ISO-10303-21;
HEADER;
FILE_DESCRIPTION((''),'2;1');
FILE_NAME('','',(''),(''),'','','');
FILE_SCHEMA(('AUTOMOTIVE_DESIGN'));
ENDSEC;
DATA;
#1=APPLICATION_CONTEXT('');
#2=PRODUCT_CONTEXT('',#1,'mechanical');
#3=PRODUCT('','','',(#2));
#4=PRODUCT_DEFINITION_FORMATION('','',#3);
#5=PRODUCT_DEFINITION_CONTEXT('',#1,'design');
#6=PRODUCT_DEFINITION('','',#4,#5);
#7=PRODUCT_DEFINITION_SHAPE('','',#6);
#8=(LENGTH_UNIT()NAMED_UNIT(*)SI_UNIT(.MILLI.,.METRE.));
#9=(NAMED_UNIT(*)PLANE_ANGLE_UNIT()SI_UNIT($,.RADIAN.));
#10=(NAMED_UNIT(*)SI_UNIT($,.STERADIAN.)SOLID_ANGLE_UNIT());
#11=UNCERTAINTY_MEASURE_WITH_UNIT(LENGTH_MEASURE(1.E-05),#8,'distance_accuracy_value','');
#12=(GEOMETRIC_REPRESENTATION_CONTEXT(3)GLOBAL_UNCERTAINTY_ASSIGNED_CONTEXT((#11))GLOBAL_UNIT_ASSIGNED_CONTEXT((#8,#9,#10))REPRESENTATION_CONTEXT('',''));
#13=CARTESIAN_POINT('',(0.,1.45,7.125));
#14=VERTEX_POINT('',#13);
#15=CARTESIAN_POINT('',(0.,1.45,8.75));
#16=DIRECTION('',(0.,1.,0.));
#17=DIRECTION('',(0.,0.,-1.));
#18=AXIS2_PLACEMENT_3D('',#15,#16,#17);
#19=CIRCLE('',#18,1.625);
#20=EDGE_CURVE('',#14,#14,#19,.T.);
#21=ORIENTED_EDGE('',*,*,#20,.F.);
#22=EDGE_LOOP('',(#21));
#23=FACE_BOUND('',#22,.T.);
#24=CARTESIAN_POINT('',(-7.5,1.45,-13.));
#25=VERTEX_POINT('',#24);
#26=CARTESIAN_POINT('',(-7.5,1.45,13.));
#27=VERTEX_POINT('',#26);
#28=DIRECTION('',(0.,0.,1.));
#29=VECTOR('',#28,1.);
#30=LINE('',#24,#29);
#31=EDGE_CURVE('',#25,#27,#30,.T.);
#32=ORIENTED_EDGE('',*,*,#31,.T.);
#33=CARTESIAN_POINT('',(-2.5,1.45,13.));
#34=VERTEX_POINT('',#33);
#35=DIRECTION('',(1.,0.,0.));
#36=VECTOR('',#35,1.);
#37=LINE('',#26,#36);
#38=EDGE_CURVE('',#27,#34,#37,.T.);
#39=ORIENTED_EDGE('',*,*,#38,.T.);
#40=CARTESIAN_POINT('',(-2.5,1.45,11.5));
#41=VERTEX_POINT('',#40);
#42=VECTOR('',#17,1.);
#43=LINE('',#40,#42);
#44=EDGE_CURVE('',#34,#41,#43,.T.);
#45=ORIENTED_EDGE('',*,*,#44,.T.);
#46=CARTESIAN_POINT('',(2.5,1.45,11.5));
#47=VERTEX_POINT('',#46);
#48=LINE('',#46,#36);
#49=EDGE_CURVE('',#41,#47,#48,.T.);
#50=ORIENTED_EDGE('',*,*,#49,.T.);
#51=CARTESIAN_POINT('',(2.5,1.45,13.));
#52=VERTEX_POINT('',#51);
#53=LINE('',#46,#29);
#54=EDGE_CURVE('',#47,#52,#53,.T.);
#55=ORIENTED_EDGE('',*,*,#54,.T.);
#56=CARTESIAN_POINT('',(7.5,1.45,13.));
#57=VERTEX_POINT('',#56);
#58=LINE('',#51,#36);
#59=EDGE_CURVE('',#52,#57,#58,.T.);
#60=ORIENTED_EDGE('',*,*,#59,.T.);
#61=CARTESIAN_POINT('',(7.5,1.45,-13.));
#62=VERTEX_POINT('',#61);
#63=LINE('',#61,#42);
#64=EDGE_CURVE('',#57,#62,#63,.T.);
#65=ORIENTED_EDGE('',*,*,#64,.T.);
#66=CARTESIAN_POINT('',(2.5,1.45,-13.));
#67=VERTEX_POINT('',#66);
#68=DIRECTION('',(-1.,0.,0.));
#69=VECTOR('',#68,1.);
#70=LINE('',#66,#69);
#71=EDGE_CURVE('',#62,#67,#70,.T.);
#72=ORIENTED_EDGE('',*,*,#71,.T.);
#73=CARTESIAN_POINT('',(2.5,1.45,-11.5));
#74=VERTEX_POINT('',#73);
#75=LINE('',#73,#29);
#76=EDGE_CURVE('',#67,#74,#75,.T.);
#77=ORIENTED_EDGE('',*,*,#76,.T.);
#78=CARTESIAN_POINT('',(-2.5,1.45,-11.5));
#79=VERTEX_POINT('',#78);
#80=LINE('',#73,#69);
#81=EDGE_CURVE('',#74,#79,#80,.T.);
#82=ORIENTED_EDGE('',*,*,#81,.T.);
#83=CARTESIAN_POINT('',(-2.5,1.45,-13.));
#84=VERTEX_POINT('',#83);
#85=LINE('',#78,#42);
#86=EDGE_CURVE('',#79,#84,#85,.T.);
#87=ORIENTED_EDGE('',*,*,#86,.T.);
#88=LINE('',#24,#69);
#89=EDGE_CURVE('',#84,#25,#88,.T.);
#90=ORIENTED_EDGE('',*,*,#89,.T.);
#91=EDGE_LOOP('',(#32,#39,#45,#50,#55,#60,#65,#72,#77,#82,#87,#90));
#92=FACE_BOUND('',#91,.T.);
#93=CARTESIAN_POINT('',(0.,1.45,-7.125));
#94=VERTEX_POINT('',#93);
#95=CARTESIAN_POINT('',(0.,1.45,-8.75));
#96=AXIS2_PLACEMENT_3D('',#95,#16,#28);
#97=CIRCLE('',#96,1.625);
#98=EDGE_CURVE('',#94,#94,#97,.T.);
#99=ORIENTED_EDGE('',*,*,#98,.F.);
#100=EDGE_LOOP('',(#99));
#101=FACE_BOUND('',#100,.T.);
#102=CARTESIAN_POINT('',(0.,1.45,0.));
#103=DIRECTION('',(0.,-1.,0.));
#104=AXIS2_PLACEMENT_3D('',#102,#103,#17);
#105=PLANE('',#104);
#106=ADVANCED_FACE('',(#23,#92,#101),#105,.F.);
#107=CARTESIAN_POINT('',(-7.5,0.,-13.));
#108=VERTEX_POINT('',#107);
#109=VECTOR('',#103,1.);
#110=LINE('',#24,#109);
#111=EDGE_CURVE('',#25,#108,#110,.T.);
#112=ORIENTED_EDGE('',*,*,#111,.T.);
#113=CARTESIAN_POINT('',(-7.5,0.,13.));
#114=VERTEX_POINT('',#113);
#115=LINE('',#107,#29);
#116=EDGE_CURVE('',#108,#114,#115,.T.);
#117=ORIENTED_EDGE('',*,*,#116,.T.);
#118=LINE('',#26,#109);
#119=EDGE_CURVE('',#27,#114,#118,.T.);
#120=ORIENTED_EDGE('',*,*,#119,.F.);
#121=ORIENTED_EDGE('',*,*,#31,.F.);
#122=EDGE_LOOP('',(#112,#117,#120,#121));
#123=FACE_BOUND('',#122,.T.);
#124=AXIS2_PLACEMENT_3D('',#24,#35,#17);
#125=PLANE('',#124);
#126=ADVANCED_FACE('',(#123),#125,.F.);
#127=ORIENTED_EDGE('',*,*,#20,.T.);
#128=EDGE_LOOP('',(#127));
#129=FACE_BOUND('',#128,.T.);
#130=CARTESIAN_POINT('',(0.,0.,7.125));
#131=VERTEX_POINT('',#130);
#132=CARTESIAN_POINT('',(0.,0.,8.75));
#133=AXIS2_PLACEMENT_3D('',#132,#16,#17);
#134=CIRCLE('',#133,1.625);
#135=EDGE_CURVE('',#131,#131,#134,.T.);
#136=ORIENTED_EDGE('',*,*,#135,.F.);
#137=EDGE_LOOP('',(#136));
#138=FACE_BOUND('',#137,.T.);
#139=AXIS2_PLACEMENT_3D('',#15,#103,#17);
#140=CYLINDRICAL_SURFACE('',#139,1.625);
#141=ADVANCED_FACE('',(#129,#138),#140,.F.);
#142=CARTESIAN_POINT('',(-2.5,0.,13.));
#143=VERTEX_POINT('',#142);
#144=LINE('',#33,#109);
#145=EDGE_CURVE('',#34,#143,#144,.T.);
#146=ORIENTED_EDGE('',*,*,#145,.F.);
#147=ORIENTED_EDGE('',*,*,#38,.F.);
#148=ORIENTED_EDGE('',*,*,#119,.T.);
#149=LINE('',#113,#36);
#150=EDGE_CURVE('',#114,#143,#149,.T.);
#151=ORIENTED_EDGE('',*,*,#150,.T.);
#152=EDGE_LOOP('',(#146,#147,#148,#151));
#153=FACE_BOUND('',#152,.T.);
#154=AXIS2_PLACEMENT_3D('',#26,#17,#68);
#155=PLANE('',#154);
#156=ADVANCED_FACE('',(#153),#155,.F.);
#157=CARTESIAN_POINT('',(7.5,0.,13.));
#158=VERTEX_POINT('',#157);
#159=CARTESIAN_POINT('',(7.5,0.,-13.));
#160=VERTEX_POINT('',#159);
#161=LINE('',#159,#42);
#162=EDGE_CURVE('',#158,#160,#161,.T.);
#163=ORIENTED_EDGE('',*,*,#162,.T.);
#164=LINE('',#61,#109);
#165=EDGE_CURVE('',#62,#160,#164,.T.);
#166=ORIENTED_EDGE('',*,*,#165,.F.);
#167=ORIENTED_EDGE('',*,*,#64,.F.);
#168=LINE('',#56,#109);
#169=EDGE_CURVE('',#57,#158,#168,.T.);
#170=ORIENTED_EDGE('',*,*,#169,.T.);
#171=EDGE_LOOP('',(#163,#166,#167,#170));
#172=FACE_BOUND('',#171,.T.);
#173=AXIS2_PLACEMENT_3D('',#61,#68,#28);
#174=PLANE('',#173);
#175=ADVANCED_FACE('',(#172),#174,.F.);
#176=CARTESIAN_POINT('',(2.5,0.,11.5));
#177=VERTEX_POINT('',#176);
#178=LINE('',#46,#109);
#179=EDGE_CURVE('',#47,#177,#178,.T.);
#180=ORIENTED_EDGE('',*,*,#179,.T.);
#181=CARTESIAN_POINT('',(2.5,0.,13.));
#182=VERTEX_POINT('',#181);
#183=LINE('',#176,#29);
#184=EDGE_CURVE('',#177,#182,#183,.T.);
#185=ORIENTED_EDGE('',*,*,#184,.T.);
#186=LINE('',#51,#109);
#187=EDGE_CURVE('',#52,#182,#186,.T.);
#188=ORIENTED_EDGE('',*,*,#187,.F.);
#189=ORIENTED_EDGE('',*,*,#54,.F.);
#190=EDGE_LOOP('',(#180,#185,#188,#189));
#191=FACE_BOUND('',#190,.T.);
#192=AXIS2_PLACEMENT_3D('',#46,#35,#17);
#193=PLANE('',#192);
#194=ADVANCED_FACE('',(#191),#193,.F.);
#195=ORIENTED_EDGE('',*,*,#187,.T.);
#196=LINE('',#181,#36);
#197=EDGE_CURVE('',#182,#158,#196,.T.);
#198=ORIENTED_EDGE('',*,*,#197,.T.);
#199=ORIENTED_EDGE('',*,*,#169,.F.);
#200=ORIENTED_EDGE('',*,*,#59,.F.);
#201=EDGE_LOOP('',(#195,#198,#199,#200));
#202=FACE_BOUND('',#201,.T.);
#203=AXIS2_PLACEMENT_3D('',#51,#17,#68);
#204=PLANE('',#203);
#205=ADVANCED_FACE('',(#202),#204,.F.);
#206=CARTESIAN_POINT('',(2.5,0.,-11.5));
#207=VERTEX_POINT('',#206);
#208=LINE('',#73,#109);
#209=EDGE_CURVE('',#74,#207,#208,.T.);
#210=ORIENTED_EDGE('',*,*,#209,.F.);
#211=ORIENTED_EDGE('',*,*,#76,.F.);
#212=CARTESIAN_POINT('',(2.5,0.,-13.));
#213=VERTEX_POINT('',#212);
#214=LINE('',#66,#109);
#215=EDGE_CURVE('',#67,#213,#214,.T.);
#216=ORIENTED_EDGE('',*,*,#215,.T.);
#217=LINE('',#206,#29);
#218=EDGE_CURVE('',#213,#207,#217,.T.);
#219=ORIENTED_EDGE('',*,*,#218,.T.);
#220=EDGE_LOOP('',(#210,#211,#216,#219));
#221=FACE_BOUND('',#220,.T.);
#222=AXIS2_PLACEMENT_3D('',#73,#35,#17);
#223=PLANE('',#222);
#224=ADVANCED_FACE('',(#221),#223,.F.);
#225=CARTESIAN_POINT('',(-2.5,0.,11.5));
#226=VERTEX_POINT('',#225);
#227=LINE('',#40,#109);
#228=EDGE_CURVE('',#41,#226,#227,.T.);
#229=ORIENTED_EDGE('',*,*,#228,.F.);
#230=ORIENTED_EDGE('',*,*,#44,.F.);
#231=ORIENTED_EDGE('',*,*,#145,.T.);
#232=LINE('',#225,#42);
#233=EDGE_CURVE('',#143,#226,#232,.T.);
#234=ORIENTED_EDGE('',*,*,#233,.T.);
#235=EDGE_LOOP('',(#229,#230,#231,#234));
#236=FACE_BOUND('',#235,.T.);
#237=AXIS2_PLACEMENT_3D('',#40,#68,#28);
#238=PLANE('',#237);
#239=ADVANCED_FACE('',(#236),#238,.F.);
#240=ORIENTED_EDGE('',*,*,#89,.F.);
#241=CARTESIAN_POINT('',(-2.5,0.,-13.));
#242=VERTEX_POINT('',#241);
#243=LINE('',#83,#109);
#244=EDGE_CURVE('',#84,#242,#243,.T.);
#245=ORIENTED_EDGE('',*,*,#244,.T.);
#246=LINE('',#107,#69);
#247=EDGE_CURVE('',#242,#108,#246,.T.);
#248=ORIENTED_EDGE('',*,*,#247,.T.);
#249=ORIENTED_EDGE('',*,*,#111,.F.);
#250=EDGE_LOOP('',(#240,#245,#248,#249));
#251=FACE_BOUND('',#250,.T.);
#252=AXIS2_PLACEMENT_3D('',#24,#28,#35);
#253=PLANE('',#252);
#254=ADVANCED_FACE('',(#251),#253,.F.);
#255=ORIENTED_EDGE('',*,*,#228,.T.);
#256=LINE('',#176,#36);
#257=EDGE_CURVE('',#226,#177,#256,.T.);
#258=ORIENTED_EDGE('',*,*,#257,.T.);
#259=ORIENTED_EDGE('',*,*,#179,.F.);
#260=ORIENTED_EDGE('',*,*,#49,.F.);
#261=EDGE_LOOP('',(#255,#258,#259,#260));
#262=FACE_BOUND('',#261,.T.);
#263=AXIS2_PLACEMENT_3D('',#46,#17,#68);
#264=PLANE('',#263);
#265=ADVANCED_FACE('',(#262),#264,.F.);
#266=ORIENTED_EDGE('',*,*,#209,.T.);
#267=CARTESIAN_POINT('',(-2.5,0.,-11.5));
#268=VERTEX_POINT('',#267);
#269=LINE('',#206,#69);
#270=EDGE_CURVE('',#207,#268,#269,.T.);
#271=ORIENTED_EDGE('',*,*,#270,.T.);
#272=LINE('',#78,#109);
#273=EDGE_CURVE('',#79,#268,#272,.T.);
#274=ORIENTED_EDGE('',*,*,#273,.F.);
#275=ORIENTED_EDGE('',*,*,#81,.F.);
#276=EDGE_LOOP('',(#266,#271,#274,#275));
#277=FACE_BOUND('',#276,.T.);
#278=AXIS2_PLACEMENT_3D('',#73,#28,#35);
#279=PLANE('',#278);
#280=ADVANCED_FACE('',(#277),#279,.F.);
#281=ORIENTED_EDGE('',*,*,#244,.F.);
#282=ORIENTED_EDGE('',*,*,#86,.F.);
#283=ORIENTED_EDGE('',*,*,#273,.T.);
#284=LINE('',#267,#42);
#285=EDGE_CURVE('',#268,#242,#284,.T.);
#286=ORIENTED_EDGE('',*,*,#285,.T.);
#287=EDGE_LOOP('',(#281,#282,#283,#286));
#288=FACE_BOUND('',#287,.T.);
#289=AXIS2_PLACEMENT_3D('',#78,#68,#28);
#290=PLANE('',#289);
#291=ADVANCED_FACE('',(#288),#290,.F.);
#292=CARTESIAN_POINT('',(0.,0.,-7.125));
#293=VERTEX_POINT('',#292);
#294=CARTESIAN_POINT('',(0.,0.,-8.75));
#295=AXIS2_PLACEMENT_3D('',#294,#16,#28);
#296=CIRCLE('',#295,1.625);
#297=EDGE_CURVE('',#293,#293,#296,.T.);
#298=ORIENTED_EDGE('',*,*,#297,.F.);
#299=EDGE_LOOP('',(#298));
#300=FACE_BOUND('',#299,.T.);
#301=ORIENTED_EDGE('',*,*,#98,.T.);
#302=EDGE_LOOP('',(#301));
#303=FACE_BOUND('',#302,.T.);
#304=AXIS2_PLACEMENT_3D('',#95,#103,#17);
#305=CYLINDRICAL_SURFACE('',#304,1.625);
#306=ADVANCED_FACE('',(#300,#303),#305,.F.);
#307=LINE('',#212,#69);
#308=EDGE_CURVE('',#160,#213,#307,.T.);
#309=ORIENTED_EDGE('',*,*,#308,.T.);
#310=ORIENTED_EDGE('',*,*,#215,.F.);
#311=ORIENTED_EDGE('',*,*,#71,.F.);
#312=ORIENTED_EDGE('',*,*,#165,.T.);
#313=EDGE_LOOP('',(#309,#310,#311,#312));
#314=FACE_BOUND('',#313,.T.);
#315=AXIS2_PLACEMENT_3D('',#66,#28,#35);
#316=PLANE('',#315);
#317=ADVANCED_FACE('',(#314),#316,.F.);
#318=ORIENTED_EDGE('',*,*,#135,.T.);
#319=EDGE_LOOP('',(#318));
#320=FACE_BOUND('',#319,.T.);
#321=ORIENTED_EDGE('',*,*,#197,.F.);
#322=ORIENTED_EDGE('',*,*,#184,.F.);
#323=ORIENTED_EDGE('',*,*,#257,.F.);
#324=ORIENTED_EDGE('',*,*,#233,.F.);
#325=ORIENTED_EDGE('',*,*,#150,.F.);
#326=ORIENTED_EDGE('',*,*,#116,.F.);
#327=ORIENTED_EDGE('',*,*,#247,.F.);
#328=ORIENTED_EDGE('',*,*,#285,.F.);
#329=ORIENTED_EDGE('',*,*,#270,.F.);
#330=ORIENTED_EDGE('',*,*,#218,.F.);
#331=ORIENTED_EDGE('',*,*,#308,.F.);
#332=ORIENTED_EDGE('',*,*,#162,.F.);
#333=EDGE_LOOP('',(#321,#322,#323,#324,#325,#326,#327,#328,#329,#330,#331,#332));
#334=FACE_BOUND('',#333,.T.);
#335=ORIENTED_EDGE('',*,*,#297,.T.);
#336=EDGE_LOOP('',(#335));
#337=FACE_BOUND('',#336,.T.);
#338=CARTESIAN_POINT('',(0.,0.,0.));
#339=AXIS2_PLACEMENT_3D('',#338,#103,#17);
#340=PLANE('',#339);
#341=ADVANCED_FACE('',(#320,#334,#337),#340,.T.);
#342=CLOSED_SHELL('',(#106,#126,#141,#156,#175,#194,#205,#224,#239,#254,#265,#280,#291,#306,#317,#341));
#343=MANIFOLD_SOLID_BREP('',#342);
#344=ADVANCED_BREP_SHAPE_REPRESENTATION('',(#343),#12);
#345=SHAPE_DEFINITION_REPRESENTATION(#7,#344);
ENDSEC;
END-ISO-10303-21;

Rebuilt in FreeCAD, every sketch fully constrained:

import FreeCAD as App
import Part
import Sketcher
from FreeCAD import Vector

doc = App.newDocument("Part")
body = doc.addObject("PartDesign::Body", "Body")

# Sketch on XZ plane
sketch1 = doc.addObject("Sketcher::SketchObject", "Sketch")
body.addObject(sketch1)
sketch1.AttachmentSupport = (doc.XZ_Plane, [""])
sketch1.MapMode = "FlatFace"
sketch1.addGeometry(Part.LineSegment(Vector(-2.5, -13, 0), Vector(-7.5, -13, 0)), False)
sketch1.addGeometry(Part.LineSegment(Vector(-7.5, -13, 0), Vector(-7.5, 13, 0)), False)
sketch1.addGeometry(Part.LineSegment(Vector(-7.5, 13, 0), Vector(-2.5, 13, 0)), False)
sketch1.addGeometry(Part.LineSegment(Vector(-2.5, 13, 0), Vector(-2.5, 11.5, 0)), False)
sketch1.addGeometry(Part.LineSegment(Vector(-2.5, 11.5, 0), Vector(2.5, 11.5, 0)), False)
sketch1.addGeometry(Part.LineSegment(Vector(2.5, 11.5, 0), Vector(2.5, 13, 0)), False)
sketch1.addGeometry(Part.LineSegment(Vector(2.5, 13, 0), Vector(7.5, 13, 0)), False)
sketch1.addGeometry(Part.LineSegment(Vector(7.5, 13, 0), Vector(7.5, -13, 0)), False)
sketch1.addGeometry(Part.LineSegment(Vector(7.5, -13, 0), Vector(2.5, -13, 0)), False)
sketch1.addGeometry(Part.LineSegment(Vector(2.5, -13, 0), Vector(2.5, -11.5, 0)), False)
sketch1.addGeometry(Part.LineSegment(Vector(2.5, -11.5, 0), Vector(-2.5, -11.5, 0)), False)
sketch1.addGeometry(Part.LineSegment(Vector(-2.5, -11.5, 0), Vector(-2.5, -13, 0)), False)
sketch1.addGeometry(Part.Circle(Vector(0, 8.75, 0), Vector(0, 0, 1), 1.625), False)
sketch1.addGeometry(Part.Circle(Vector(0, -8.75, 0), Vector(0, 0, 1), 1.625), False)
sketch1.addConstraint(Sketcher.Constraint("Coincident", 0, 2, 1, 1))
sketch1.addConstraint(Sketcher.Constraint("Coincident", 1, 2, 2, 1))
sketch1.addConstraint(Sketcher.Constraint("Coincident", 2, 2, 3, 1))
sketch1.addConstraint(Sketcher.Constraint("Coincident", 3, 2, 4, 1))
sketch1.addConstraint(Sketcher.Constraint("Coincident", 4, 2, 5, 1))
sketch1.addConstraint(Sketcher.Constraint("Coincident", 5, 2, 6, 1))
sketch1.addConstraint(Sketcher.Constraint("Coincident", 6, 2, 7, 1))
sketch1.addConstraint(Sketcher.Constraint("Coincident", 7, 2, 8, 1))
sketch1.addConstraint(Sketcher.Constraint("Coincident", 8, 2, 9, 1))
sketch1.addConstraint(Sketcher.Constraint("Coincident", 9, 2, 10, 1))
sketch1.addConstraint(Sketcher.Constraint("Coincident", 10, 2, 11, 1))
sketch1.addConstraint(Sketcher.Constraint("Coincident", 11, 2, 0, 1))
sketch1.addConstraint(Sketcher.Constraint("Horizontal", 0))
sketch1.addConstraint(Sketcher.Constraint("Vertical", 1))
sketch1.addConstraint(Sketcher.Constraint("Horizontal", 2))
sketch1.addConstraint(Sketcher.Constraint("Vertical", 3))
sketch1.addConstraint(Sketcher.Constraint("Horizontal", 4))
sketch1.addConstraint(Sketcher.Constraint("Vertical", 5))
sketch1.addConstraint(Sketcher.Constraint("Horizontal", 6))
sketch1.addConstraint(Sketcher.Constraint("Vertical", 7))
sketch1.addConstraint(Sketcher.Constraint("Horizontal", 8))
sketch1.addConstraint(Sketcher.Constraint("Vertical", 9))
sketch1.addConstraint(Sketcher.Constraint("Horizontal", 10))
sketch1.addConstraint(Sketcher.Constraint("Vertical", 11))
sketch1.addConstraint(Sketcher.Constraint("Equal", 12, 13))
sketch1.addConstraint(Sketcher.Constraint("Symmetric", 12, 3, 13, 3, -1, 1))
sketch1.addConstraint(Sketcher.Constraint("Symmetric", 0, 2, 6, 2, -1, 1))
sketch1.addConstraint(Sketcher.Constraint("Symmetric", 2, 2, 8, 2, -1, 1))
sketch1.addConstraint(Sketcher.Constraint("Symmetric", 4, 2, 10, 2, -1, 1))
sketch1.addConstraint(Sketcher.Constraint("Symmetric", 2, 2, 5, 2, -2))
sketch1.addConstraint(Sketcher.Constraint("PointOnObject", 12, 3, -2))
sketch1.addConstraint(Sketcher.Constraint("Equal", 2, 4))
sketch1.addConstraint(Sketcher.Constraint("Diameter", 12, 3.25))
sketch1.addConstraint(Sketcher.Constraint("DistanceX", 0, 2, 0, 1, 5.0))
sketch1.addConstraint(Sketcher.Constraint("DistanceY", 1, 1, 1, 2, 26.0))
sketch1.addConstraint(Sketcher.Constraint("DistanceY", 3, 2, 3, 1, 1.5))
sketch1.addConstraint(Sketcher.Constraint("DistanceY", 13, 3, 12, 3, 17.5))
pad1 = doc.addObject("PartDesign::Pad", "Pad")
body.addObject(pad1)
pad1.Profile = sketch1
pad1.Length = 1.45
pad1.Reversed = True

doc.recompute()
